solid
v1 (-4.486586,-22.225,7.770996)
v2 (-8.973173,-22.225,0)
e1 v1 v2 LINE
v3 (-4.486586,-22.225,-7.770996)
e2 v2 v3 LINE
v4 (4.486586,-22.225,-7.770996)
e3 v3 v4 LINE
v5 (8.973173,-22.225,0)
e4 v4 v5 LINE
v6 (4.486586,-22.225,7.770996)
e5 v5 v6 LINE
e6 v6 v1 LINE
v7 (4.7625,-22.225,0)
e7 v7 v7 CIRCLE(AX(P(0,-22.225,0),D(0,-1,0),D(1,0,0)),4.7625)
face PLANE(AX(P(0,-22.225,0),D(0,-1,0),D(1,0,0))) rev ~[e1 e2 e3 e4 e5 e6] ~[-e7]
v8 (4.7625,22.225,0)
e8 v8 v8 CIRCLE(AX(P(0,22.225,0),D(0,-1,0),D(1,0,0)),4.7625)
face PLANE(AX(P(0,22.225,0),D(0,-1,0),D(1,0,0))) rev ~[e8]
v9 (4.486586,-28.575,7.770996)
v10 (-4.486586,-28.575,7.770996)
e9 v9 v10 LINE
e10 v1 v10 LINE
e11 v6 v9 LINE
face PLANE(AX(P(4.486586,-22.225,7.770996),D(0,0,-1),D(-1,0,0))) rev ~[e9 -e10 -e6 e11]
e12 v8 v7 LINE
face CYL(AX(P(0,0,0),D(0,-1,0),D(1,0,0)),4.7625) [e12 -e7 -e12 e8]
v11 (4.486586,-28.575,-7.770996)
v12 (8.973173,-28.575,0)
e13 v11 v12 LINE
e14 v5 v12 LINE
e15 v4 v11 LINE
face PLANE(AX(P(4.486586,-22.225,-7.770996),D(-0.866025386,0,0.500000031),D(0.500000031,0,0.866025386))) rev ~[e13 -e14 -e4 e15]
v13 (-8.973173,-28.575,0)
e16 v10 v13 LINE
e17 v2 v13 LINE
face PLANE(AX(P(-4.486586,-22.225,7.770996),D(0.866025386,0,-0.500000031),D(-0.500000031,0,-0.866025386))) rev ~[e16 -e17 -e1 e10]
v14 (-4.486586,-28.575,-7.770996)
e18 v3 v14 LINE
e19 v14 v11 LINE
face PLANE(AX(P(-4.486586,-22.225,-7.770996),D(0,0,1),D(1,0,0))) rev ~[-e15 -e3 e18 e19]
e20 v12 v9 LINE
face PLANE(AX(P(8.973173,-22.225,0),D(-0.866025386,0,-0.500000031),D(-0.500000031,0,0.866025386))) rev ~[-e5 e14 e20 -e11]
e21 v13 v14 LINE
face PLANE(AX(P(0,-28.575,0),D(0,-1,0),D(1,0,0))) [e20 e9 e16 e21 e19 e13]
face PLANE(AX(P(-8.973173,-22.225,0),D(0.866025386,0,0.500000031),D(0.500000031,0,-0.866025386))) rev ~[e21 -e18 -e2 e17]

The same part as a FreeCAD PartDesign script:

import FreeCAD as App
import Part
import Sketcher
from FreeCAD import Vector
Q = App.Units.Quantity


def add_polygon(sketch, points):
    """Adds a closed chain of lines whose ends are joined by coincident constraints."""
    first, n = sketch.GeometryCount, len(points)
    for a, b in zip(points, points[1:] + points[:1]):
        sketch.addGeometry(Part.LineSegment(App.Vector(*a, 0), App.Vector(*b, 0)), False)
    for i in range(n):
        sketch.addConstraint(Sketcher.Constraint("Coincident", first + i, 2, first + (i + 1) % n, 1))

doc = App.newDocument("Part")
params = doc.addObject("Spreadsheet::Sheet", "Params")
for row, (alias, value) in enumerate([
    ("sketch1_diameter", "0.375 in"),
    ("pad1_length", "1.75 in"),
    ("pad2_length", "0.25 in"),
], start=1):
    params.set(f"A{row}", alias)
    params.set(f"B{row}", "=" + value)
    params.setAlias(f"B{row}", alias)

body = doc.addObject("PartDesign::Body", "Body")

sketch1 = body.newObject("Sketcher::SketchObject", "Sketch")
sketch1.AttachmentSupport = (doc.getObject("XZ_Plane"), [""])
sketch1.MapMode = "FlatFace"
sketch1.addGeometry(Part.Circle(Vector(0, 0, 0), Vector(0, 0, 1), 4.8), False)
sketch1.addConstraint([
    Sketcher.Constraint("Coincident", 0, 3, -1, 1),
    Sketcher.Constraint("Diameter", 0, Q("0.375 in")),
])
sketch1.setExpression("Constraints[1]", "Params.sketch1_diameter")
pad1 = body.newObject("PartDesign::Pad", "Pad")
pad1.Profile = sketch1
pad1.setExpression("Length", "Params.pad1_length")
pad1.Midplane = True

sketch2 = body.newObject("Sketcher::SketchObject", "Sketch001")
sketch2.AttachmentSupport = (doc.getObject("XZ_Plane"), [""])
sketch2.MapMode = "FlatFace"
sketch2.AttachmentOffset = App.Placement(Vector(0, 0, 0.875 * 25.4), App.Rotation())
add_polygon(sketch2, [(-4, -8), (4, -8), (9, 0), (4, 8), (-4, 8), (-9, 0)])
sketch2.addConstraint([
    Sketcher.Constraint("Horizontal", 0),
    Sketcher.Constraint("Horizontal", 3),
    Sketcher.Constraint("Symmetric", 0, 2, 3, 2, -1, 1),
    Sketcher.Constraint("Symmetric", 1, 2, 4, 2, -1, 1),
    Sketcher.Constraint("PointOnObject", 1, 2, -1),
    Sketcher.Constraint("Parallel", 2, 5),
    Sketcher.Constraint("Vertical", 0, 2, 2, 2),
    Sketcher.Constraint("Angle", 1, Q("59.999998 deg")),
    Sketcher.Constraint("DistanceX", 0, 1, 0, 2, Q("8.973172 mm")),
    Sketcher.Constraint("DistanceX", 3, 2, 1, 2, Q("13.459759 mm")),
])
pad2 = body.newObject("PartDesign::Pad", "Pad001")
pad2.Profile = sketch2
pad2.setExpression("Length", "Params.pad2_length")

doc.recompute()
